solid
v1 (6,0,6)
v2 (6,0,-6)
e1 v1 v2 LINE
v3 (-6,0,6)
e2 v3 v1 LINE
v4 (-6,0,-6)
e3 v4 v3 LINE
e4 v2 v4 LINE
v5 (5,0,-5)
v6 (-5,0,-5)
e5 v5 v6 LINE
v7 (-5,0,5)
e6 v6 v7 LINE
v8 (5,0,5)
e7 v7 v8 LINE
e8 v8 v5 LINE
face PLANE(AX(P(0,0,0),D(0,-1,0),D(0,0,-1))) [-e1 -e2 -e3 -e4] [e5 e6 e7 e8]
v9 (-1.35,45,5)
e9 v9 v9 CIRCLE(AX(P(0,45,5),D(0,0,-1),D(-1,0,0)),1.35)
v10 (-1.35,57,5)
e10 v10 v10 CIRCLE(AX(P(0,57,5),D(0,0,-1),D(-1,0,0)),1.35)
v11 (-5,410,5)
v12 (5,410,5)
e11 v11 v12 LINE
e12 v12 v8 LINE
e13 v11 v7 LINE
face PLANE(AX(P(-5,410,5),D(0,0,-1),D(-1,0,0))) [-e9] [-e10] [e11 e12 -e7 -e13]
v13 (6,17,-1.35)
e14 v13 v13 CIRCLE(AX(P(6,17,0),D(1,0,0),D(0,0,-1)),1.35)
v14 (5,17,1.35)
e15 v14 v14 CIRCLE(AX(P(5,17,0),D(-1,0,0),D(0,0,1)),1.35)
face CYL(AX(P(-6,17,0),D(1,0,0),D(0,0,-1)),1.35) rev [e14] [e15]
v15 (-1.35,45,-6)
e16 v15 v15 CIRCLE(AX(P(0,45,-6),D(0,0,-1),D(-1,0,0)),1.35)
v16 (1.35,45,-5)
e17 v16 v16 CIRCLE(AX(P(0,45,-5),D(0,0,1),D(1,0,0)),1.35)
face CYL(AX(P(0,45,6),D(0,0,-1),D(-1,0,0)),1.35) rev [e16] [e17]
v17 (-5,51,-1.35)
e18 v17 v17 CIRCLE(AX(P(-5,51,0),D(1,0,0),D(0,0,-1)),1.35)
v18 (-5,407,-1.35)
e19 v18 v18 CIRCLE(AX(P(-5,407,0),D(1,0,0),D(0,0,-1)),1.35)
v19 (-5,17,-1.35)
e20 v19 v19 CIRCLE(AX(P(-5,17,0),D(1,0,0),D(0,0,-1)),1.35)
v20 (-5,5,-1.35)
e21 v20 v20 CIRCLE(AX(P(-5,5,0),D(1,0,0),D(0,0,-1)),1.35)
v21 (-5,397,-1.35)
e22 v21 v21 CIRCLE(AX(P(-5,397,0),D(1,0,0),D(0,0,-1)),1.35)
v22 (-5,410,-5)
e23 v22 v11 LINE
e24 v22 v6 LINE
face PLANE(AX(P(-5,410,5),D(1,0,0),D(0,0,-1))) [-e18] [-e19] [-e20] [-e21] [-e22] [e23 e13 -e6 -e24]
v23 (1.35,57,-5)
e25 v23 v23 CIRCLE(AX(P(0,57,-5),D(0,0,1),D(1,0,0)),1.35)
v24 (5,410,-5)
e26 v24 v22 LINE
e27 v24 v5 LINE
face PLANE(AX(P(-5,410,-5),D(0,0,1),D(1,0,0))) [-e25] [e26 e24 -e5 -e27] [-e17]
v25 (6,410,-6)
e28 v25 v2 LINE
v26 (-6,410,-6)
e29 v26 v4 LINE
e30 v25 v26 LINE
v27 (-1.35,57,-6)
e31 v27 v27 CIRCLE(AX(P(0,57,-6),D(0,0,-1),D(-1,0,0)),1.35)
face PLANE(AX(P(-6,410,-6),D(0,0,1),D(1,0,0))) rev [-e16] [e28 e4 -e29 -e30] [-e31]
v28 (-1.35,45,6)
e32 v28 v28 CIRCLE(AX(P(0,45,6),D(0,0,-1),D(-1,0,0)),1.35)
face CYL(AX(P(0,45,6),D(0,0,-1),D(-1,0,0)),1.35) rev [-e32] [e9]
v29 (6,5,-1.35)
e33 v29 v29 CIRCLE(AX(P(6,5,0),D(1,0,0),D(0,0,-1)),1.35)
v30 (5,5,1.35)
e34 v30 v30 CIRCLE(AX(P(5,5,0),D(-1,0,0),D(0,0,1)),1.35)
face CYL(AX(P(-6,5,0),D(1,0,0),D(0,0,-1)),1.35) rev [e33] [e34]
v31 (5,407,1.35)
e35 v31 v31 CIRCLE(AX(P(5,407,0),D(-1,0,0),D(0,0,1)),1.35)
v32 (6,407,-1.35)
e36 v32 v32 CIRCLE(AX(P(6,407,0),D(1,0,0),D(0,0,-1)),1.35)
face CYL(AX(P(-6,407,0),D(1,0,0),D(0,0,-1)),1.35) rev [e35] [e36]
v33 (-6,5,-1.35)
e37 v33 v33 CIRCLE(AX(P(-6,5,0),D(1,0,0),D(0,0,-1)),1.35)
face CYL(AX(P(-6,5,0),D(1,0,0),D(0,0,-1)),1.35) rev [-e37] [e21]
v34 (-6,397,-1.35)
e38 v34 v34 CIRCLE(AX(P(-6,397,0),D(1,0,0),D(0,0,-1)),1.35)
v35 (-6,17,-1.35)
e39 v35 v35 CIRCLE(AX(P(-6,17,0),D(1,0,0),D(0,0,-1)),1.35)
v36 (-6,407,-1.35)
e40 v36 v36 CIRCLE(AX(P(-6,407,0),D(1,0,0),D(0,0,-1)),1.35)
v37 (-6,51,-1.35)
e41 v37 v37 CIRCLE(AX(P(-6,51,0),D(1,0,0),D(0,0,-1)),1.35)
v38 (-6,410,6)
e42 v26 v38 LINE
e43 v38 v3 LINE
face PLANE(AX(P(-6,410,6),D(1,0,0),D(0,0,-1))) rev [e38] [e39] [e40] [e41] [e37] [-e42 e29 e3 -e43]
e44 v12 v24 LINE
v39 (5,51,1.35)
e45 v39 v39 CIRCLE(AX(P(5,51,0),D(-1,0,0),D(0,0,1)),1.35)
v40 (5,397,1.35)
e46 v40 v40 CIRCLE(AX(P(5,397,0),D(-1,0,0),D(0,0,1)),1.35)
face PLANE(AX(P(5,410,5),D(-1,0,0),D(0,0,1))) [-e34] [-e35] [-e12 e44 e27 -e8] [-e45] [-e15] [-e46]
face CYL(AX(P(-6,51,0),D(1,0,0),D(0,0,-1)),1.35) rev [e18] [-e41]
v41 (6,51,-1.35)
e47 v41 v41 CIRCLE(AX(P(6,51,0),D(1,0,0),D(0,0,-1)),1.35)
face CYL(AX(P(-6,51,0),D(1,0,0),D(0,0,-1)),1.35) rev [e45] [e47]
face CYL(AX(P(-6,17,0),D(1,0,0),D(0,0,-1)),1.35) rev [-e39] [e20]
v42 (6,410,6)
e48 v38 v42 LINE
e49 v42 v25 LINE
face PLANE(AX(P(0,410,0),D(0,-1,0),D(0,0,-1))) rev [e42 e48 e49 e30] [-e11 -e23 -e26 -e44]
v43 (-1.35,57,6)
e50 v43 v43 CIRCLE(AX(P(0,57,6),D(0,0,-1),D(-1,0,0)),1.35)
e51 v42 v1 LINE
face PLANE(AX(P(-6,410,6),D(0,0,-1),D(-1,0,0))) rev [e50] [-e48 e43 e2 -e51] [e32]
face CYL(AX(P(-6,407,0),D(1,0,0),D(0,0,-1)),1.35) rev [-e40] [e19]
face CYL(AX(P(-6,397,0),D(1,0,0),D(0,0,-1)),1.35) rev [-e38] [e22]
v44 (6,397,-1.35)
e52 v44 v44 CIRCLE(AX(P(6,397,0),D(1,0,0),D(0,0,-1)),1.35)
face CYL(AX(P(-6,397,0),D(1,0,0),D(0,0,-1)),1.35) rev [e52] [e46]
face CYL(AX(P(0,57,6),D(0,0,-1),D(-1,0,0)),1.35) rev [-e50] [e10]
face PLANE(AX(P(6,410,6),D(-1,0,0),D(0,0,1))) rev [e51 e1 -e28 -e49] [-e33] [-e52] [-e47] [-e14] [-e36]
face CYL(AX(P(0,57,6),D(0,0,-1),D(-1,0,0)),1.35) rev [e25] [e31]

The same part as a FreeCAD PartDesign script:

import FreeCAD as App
import Part
import Sketcher
Q = App.Units.Quantity

doc = App.newDocument("Part")
body = doc.addObject("PartDesign::Body", "Body")

# Sketch on XZ plane
sketch1 = doc.addObject("Sketcher::SketchObject", "Sketch")
body.addObject(sketch1)
sketch1.AttachmentSupport = (doc.XZ_Plane, [""])
sketch1.MapMode = "FlatFace"
sketch1.addGeometry([
    Part.LineSegment(App.Vector(-6, -6, 0), App.Vector(-6, 6, 0)),  # 0
    Part.LineSegment(App.Vector(-6, 6, 0), App.Vector(6, 6, 0)),  # 1
    Part.LineSegment(App.Vector(6, 6, 0), App.Vector(6, -6, 0)),  # 2
    Part.LineSegment(App.Vector(6, -6, 0), App.Vector(-6, -6, 0)),  # 3
    Part.LineSegment(App.Vector(5, 5, 0), App.Vector(-5, 5, 0)),  # 4
    Part.LineSegment(App.Vector(-5, 5, 0), App.Vector(-5, -5, 0)),  # 5
    Part.LineSegment(App.Vector(-5, -5, 0), App.Vector(5, -5, 0)),  # 6
    Part.LineSegment(App.Vector(5, -5, 0), App.Vector(5, 5, 0)),  # 7
], False)
sketch1.addConstraint([
    Sketcher.Constraint("Coincident", 0, 2, 1, 1),
    Sketcher.Constraint("Coincident", 1, 2, 2, 1),
    Sketcher.Constraint("Coincident", 2, 2, 3, 1),
    Sketcher.Constraint("Coincident", 3, 2, 0, 1),
    Sketcher.Constraint("Coincident", 4, 2, 5, 1),
    Sketcher.Constraint("Coincident", 5, 2, 6, 1),
    Sketcher.Constraint("Coincident", 6, 2, 7, 1),
    Sketcher.Constraint("Coincident", 7, 2, 4, 1),
    Sketcher.Constraint("Vertical", 0),
    Sketcher.Constraint("Horizontal", 1),
    Sketcher.Constraint("Vertical", 2),
    Sketcher.Constraint("Horizontal", 3),
    Sketcher.Constraint("Horizontal", 4),
    Sketcher.Constraint("Vertical", 5),
    Sketcher.Constraint("Horizontal", 6),
    Sketcher.Constraint("Vertical", 7),
    Sketcher.Constraint("Symmetric", 0, 2, 2, 2, -1, 1),
    Sketcher.Constraint("Symmetric", 4, 2, 6, 2, -1, 1),
    Sketcher.Constraint("Equal", 3, 0),
    Sketcher.Constraint("Equal", 6, 5),
    Sketcher.Constraint("DistanceX", 1, 1, 1, 2, Q("12 mm")),
    Sketcher.Constraint("DistanceX", 4, 2, 4, 1, Q("10 mm")),
])
pad1 = doc.addObject("PartDesign::Pad", "Pad")
body.addObject(pad1)
pad1.Profile = sketch1
pad1.Length = 410
pad1.Reversed = True

# Sketch on YZ plane
sketch2 = doc.addObject("Sketcher::SketchObject", "Sketch001")
body.addObject(sketch2)
sketch2.AttachmentSupport = (doc.YZ_Plane, [""])
sketch2.MapMode = "FlatFace"
sketch2.AttachmentOffset = App.Placement(App.Vector(0, 0, 6), App.Rotation())
sketch2.addGeometry([
    Part.Circle(App.Vector(5, 0, 0), App.Vector(0, 0, 1), 1.4),
    Part.Circle(App.Vector(17, 0, 0), App.Vector(0, 0, 1), 1.4),
    Part.Circle(App.Vector(51, 0, 0), App.Vector(0, 0, 1), 1.4),
], False)
sketch2.addConstraint([
    Sketcher.Constraint("Equal", 0, 1),
    Sketcher.Constraint("Equal", 1, 2),
    Sketcher.Constraint("PointOnObject", 0, 3, -1),
    Sketcher.Constraint("PointOnObject", 1, 3, -1),
    Sketcher.Constraint("PointOnObject", 2, 3, -1),
    Sketcher.Constraint("Diameter", 0, Q("2.7 mm")),
    Sketcher.Constraint("DistanceX", -1, 1, 0, 3, Q("5 mm")),
    Sketcher.Constraint("DistanceX", -1, 1, 1, 3, Q("17 mm")),
    Sketcher.Constraint("DistanceX", -1, 1, 2, 3, Q("51 mm")),
])
pocket1 = doc.addObject("PartDesign::Pocket", "Pocket")
body.addObject(pocket1)
pocket1.Profile = sketch2
pocket1.Type = "ThroughAll"

# Sketch on YZ plane
sketch3 = doc.addObject("Sketcher::SketchObject", "Sketch002")
body.addObject(sketch3)
sketch3.AttachmentSupport = (doc.YZ_Plane, [""])
sketch3.MapMode = "FlatFace"
sketch3.AttachmentOffset = App.Placement(App.Vector(0, 0, 6), App.Rotation())
sketch3.addGeometry([
    Part.Circle(App.Vector(407, 0, 0), App.Vector(0, 0, 1), 1.4),
    Part.Circle(App.Vector(397, 0, 0), App.Vector(0, 0, 1), 1.4),
], False)
sketch3.addConstraint([
    Sketcher.Constraint("Equal", 0, 1),
    Sketcher.Constraint("PointOnObject", 0, 3, -1),
    Sketcher.Constraint("PointOnObject", 1, 3, -1),
    Sketcher.Constraint("Diameter", 0, Q("2.7 mm")),
    Sketcher.Constraint("DistanceX", -1, 1, 0, 3, Q("407 mm")),
    Sketcher.Constraint("DistanceX", -1, 1, 1, 3, Q("397 mm")),
])
pocket2 = doc.addObject("PartDesign::Pocket", "Pocket001")
body.addObject(pocket2)
pocket2.Profile = sketch3
pocket2.Type = "ThroughAll"

# Sketch on XY plane
sketch4 = doc.addObject("Sketcher::SketchObject", "Sketch003")
body.addObject(sketch4)
sketch4.AttachmentSupport = (doc.XY_Plane, [""])
sketch4.MapMode = "FlatFace"
sketch4.AttachmentOffset = App.Placement(App.Vector(0, 0, -6), App.Rotation())
sketch4.addGeometry([
    Part.Circle(App.Vector(0, 45, 0), App.Vector(0, 0, 1), 1.4),
    Part.Circle(App.Vector(0, 57, 0), App.Vector(0, 0, 1), 1.4),
], False)
sketch4.addConstraint([
    Sketcher.Constraint("Equal", 0, 1),
    Sketcher.Constraint("PointOnObject", 0, 3, -2),
    Sketcher.Constraint("PointOnObject", 1, 3, -2),
    Sketcher.Constraint("Diameter", 0, Q("2.7 mm")),
    Sketcher.Constraint("DistanceY", -1, 1, 0, 3, Q("45 mm")),
    Sketcher.Constraint("DistanceY", -1, 1, 1, 3, Q("57 mm")),
])
pocket3 = doc.addObject("PartDesign::Pocket", "Pocket002")
body.addObject(pocket3)
pocket3.Profile = sketch4
pocket3.Type = "ThroughAll"
pocket3.Reversed = True

doc.recompute()
